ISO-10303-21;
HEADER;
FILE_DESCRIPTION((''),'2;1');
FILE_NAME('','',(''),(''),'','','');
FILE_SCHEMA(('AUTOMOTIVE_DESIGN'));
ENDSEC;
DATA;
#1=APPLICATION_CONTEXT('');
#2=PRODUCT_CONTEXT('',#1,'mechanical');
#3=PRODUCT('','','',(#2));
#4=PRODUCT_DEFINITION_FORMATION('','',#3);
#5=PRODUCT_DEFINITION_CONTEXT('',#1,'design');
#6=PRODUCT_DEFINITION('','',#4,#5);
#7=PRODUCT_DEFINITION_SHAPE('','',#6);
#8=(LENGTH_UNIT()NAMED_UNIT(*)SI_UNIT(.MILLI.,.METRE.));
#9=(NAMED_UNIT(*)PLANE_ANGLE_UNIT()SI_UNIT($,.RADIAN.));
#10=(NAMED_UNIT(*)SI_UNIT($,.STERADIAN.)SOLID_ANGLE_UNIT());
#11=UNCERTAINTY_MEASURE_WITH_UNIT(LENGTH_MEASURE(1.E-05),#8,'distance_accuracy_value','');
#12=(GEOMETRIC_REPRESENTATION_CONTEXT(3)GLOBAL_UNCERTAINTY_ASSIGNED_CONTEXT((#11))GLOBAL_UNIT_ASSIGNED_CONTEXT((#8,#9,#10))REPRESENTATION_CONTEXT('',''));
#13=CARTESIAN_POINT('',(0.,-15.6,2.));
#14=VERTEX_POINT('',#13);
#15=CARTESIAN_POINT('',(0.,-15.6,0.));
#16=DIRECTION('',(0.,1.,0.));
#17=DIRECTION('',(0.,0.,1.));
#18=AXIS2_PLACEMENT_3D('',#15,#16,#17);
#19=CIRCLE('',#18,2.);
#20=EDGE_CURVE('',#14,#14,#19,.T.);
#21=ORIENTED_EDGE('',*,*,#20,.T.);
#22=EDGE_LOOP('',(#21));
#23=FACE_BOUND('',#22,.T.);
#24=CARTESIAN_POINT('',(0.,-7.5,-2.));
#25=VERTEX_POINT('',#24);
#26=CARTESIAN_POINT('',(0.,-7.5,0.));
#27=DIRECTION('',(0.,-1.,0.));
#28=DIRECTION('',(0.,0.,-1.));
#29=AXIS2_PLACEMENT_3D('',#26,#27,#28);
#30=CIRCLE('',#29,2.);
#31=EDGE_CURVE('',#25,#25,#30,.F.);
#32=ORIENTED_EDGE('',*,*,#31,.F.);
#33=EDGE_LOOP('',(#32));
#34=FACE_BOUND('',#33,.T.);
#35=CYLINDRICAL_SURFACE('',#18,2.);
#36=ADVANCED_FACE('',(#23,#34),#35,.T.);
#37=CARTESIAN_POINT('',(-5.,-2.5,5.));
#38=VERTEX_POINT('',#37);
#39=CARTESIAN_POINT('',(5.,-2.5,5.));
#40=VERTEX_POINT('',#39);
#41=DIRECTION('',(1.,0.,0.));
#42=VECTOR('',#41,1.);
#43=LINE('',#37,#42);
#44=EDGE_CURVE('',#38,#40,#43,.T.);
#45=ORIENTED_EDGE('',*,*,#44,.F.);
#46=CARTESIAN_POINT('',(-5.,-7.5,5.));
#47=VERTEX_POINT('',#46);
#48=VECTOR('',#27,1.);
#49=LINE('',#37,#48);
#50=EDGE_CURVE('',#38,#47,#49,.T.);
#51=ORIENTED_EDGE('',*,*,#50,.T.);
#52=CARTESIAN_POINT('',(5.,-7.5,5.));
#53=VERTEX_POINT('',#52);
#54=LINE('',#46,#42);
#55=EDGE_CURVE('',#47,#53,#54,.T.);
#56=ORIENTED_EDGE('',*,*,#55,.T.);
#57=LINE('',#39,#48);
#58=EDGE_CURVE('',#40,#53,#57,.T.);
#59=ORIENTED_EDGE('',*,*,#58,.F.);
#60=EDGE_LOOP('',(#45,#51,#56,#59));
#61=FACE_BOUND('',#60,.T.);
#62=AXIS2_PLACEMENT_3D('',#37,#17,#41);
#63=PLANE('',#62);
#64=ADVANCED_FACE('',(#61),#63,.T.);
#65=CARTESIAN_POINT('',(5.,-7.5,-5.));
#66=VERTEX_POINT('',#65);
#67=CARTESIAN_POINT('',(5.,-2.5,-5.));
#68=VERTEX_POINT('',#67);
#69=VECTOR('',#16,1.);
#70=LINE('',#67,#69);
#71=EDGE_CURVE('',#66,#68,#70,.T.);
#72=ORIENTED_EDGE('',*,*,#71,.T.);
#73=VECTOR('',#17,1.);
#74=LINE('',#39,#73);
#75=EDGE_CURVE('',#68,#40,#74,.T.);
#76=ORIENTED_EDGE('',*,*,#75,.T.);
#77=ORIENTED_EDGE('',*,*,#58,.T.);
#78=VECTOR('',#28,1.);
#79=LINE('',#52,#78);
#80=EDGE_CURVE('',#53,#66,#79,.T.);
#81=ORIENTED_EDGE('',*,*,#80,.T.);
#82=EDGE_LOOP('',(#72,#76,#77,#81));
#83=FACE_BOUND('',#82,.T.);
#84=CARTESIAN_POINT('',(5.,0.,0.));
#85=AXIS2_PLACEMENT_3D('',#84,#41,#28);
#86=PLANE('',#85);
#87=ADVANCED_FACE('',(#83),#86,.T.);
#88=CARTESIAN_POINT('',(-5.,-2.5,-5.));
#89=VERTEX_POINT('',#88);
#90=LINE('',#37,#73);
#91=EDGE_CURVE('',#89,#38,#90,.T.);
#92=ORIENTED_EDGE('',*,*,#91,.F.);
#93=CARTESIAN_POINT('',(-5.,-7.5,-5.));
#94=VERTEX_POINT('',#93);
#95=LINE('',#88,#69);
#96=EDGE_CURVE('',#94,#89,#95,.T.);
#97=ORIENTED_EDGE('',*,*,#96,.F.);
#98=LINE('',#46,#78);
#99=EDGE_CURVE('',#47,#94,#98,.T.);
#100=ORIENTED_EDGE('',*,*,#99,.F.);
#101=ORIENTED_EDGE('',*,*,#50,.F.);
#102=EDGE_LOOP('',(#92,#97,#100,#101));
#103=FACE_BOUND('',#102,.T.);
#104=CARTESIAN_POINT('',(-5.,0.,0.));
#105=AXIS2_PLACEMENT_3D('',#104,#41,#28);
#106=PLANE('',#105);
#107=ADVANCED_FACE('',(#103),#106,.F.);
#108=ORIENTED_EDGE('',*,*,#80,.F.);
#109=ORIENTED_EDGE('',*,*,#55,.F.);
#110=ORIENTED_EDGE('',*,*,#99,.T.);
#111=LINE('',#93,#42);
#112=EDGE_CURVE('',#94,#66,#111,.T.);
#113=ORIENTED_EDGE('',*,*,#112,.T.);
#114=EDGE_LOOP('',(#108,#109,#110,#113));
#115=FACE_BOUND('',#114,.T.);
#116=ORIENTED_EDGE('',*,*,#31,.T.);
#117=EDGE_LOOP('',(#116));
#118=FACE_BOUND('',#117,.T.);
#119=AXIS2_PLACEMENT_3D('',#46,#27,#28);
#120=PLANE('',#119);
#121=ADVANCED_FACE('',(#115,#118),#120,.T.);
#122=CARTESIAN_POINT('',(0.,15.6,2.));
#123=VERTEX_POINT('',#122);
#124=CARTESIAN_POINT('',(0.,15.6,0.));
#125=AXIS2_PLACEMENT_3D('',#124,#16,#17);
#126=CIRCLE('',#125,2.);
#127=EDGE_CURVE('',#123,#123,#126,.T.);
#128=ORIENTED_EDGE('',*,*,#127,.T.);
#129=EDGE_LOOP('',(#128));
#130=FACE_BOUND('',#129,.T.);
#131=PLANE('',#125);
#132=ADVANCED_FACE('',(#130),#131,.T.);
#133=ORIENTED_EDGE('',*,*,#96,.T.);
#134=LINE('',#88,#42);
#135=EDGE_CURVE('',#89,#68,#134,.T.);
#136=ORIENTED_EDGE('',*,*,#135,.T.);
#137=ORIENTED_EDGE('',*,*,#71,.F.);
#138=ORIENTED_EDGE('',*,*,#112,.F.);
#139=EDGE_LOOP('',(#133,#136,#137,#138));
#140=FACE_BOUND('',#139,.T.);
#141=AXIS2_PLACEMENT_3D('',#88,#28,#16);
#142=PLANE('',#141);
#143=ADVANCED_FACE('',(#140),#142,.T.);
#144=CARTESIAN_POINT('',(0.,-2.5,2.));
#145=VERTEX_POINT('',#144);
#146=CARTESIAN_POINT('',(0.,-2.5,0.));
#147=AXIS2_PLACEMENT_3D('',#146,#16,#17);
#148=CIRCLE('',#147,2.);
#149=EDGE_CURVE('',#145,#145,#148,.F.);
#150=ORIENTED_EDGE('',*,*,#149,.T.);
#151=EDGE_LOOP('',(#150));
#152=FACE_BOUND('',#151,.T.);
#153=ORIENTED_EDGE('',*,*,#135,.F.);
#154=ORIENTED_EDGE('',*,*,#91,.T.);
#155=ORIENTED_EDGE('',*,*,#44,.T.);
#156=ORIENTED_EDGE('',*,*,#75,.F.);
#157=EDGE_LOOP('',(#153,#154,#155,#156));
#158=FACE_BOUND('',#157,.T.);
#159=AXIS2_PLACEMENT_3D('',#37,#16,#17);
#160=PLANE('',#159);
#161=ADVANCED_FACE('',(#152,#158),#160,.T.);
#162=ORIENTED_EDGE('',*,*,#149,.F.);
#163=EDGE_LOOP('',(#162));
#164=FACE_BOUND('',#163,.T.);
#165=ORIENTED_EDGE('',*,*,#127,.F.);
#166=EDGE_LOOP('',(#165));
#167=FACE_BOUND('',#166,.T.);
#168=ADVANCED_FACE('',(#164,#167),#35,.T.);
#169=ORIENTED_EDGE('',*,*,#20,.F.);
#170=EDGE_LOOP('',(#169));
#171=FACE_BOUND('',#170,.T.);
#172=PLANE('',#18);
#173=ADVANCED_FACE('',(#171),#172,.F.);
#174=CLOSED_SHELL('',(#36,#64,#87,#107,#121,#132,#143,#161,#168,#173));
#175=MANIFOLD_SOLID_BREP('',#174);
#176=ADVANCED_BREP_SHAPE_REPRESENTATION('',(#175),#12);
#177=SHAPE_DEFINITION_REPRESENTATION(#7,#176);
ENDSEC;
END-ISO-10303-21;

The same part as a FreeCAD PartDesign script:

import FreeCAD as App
import Part
import Sketcher
from FreeCAD import Vector


def add_polygon(sketch, points):
    """Adds a closed chain of lines whose ends are joined by coincident constraints."""
    first, n = sketch.GeometryCount, len(points)
    for a, b in zip(points, points[1:] + points[:1]):
        sketch.addGeometry(Part.LineSegment(App.Vector(*a, 0), App.Vector(*b, 0)), False)
    for i in range(n):
        sketch.addConstraint(Sketcher.Constraint("Coincident", first + i, 2, first + (i + 1) % n, 1))

doc = App.newDocument("Part")
body = doc.addObject("PartDesign::Body", "Body")

sketch1 = doc.addObject("Sketcher::SketchObject", "Sketch")
body.addObject(sketch1)
sketch1.AttachmentSupport = (doc.XZ_Plane, [""])
sketch1.MapMode = "FlatFace"
sketch1.addGeometry(Part.Circle(Vector(0, 0, 0), Vector(0, 0, 1), 2), False)
sketch1.addConstraint([
    Sketcher.Constraint("Coincident", 0, 3, -1, 1),
    Sketcher.Constraint("Diameter", 0, 4.0),
])
pad1 = doc.addObject("PartDesign::Pad", "Pad")
body.addObject(pad1)
pad1.Profile = sketch1
pad1.Type = "TwoLengths"
pad1.Length = 15.6
pad1.Length2 = 15.6
pad1.Reversed = True

sketch2 = doc.addObject("Sketcher::SketchObject", "Sketch001")
body.addObject(sketch2)
sketch2.AttachmentSupport = (doc.YZ_Plane, [""])
sketch2.MapMode = "FlatFace"
add_polygon(sketch2, [(-2, 5), (-8, 5), (-8, -5), (-2, -5)])
sketch2.addConstraint([
    Sketcher.Constraint("Horizontal", 0),
    Sketcher.Constraint("Vertical", 1),
    Sketcher.Constraint("Horizontal", 2),
    Sketcher.Constraint("Vertical", 3),
    Sketcher.Constraint("DistanceX", 0, 2, 0, 1, 5.0),
    Sketcher.Constraint("DistanceY", 1, 2, 1, 1, 10.0),
    Sketcher.Constraint("DistanceY", -1, 1, 0, 2, 5.0),
    Sketcher.Constraint("DistanceX", 0, 2, -1, 1, 7.5),
])
pad2 = doc.addObject("PartDesign::Pad", "Pad001")
body.addObject(pad2)
pad2.Profile = sketch2
pad2.Type = "TwoLengths"
pad2.Length = 5
pad2.Length2 = 5

doc.recompute()
